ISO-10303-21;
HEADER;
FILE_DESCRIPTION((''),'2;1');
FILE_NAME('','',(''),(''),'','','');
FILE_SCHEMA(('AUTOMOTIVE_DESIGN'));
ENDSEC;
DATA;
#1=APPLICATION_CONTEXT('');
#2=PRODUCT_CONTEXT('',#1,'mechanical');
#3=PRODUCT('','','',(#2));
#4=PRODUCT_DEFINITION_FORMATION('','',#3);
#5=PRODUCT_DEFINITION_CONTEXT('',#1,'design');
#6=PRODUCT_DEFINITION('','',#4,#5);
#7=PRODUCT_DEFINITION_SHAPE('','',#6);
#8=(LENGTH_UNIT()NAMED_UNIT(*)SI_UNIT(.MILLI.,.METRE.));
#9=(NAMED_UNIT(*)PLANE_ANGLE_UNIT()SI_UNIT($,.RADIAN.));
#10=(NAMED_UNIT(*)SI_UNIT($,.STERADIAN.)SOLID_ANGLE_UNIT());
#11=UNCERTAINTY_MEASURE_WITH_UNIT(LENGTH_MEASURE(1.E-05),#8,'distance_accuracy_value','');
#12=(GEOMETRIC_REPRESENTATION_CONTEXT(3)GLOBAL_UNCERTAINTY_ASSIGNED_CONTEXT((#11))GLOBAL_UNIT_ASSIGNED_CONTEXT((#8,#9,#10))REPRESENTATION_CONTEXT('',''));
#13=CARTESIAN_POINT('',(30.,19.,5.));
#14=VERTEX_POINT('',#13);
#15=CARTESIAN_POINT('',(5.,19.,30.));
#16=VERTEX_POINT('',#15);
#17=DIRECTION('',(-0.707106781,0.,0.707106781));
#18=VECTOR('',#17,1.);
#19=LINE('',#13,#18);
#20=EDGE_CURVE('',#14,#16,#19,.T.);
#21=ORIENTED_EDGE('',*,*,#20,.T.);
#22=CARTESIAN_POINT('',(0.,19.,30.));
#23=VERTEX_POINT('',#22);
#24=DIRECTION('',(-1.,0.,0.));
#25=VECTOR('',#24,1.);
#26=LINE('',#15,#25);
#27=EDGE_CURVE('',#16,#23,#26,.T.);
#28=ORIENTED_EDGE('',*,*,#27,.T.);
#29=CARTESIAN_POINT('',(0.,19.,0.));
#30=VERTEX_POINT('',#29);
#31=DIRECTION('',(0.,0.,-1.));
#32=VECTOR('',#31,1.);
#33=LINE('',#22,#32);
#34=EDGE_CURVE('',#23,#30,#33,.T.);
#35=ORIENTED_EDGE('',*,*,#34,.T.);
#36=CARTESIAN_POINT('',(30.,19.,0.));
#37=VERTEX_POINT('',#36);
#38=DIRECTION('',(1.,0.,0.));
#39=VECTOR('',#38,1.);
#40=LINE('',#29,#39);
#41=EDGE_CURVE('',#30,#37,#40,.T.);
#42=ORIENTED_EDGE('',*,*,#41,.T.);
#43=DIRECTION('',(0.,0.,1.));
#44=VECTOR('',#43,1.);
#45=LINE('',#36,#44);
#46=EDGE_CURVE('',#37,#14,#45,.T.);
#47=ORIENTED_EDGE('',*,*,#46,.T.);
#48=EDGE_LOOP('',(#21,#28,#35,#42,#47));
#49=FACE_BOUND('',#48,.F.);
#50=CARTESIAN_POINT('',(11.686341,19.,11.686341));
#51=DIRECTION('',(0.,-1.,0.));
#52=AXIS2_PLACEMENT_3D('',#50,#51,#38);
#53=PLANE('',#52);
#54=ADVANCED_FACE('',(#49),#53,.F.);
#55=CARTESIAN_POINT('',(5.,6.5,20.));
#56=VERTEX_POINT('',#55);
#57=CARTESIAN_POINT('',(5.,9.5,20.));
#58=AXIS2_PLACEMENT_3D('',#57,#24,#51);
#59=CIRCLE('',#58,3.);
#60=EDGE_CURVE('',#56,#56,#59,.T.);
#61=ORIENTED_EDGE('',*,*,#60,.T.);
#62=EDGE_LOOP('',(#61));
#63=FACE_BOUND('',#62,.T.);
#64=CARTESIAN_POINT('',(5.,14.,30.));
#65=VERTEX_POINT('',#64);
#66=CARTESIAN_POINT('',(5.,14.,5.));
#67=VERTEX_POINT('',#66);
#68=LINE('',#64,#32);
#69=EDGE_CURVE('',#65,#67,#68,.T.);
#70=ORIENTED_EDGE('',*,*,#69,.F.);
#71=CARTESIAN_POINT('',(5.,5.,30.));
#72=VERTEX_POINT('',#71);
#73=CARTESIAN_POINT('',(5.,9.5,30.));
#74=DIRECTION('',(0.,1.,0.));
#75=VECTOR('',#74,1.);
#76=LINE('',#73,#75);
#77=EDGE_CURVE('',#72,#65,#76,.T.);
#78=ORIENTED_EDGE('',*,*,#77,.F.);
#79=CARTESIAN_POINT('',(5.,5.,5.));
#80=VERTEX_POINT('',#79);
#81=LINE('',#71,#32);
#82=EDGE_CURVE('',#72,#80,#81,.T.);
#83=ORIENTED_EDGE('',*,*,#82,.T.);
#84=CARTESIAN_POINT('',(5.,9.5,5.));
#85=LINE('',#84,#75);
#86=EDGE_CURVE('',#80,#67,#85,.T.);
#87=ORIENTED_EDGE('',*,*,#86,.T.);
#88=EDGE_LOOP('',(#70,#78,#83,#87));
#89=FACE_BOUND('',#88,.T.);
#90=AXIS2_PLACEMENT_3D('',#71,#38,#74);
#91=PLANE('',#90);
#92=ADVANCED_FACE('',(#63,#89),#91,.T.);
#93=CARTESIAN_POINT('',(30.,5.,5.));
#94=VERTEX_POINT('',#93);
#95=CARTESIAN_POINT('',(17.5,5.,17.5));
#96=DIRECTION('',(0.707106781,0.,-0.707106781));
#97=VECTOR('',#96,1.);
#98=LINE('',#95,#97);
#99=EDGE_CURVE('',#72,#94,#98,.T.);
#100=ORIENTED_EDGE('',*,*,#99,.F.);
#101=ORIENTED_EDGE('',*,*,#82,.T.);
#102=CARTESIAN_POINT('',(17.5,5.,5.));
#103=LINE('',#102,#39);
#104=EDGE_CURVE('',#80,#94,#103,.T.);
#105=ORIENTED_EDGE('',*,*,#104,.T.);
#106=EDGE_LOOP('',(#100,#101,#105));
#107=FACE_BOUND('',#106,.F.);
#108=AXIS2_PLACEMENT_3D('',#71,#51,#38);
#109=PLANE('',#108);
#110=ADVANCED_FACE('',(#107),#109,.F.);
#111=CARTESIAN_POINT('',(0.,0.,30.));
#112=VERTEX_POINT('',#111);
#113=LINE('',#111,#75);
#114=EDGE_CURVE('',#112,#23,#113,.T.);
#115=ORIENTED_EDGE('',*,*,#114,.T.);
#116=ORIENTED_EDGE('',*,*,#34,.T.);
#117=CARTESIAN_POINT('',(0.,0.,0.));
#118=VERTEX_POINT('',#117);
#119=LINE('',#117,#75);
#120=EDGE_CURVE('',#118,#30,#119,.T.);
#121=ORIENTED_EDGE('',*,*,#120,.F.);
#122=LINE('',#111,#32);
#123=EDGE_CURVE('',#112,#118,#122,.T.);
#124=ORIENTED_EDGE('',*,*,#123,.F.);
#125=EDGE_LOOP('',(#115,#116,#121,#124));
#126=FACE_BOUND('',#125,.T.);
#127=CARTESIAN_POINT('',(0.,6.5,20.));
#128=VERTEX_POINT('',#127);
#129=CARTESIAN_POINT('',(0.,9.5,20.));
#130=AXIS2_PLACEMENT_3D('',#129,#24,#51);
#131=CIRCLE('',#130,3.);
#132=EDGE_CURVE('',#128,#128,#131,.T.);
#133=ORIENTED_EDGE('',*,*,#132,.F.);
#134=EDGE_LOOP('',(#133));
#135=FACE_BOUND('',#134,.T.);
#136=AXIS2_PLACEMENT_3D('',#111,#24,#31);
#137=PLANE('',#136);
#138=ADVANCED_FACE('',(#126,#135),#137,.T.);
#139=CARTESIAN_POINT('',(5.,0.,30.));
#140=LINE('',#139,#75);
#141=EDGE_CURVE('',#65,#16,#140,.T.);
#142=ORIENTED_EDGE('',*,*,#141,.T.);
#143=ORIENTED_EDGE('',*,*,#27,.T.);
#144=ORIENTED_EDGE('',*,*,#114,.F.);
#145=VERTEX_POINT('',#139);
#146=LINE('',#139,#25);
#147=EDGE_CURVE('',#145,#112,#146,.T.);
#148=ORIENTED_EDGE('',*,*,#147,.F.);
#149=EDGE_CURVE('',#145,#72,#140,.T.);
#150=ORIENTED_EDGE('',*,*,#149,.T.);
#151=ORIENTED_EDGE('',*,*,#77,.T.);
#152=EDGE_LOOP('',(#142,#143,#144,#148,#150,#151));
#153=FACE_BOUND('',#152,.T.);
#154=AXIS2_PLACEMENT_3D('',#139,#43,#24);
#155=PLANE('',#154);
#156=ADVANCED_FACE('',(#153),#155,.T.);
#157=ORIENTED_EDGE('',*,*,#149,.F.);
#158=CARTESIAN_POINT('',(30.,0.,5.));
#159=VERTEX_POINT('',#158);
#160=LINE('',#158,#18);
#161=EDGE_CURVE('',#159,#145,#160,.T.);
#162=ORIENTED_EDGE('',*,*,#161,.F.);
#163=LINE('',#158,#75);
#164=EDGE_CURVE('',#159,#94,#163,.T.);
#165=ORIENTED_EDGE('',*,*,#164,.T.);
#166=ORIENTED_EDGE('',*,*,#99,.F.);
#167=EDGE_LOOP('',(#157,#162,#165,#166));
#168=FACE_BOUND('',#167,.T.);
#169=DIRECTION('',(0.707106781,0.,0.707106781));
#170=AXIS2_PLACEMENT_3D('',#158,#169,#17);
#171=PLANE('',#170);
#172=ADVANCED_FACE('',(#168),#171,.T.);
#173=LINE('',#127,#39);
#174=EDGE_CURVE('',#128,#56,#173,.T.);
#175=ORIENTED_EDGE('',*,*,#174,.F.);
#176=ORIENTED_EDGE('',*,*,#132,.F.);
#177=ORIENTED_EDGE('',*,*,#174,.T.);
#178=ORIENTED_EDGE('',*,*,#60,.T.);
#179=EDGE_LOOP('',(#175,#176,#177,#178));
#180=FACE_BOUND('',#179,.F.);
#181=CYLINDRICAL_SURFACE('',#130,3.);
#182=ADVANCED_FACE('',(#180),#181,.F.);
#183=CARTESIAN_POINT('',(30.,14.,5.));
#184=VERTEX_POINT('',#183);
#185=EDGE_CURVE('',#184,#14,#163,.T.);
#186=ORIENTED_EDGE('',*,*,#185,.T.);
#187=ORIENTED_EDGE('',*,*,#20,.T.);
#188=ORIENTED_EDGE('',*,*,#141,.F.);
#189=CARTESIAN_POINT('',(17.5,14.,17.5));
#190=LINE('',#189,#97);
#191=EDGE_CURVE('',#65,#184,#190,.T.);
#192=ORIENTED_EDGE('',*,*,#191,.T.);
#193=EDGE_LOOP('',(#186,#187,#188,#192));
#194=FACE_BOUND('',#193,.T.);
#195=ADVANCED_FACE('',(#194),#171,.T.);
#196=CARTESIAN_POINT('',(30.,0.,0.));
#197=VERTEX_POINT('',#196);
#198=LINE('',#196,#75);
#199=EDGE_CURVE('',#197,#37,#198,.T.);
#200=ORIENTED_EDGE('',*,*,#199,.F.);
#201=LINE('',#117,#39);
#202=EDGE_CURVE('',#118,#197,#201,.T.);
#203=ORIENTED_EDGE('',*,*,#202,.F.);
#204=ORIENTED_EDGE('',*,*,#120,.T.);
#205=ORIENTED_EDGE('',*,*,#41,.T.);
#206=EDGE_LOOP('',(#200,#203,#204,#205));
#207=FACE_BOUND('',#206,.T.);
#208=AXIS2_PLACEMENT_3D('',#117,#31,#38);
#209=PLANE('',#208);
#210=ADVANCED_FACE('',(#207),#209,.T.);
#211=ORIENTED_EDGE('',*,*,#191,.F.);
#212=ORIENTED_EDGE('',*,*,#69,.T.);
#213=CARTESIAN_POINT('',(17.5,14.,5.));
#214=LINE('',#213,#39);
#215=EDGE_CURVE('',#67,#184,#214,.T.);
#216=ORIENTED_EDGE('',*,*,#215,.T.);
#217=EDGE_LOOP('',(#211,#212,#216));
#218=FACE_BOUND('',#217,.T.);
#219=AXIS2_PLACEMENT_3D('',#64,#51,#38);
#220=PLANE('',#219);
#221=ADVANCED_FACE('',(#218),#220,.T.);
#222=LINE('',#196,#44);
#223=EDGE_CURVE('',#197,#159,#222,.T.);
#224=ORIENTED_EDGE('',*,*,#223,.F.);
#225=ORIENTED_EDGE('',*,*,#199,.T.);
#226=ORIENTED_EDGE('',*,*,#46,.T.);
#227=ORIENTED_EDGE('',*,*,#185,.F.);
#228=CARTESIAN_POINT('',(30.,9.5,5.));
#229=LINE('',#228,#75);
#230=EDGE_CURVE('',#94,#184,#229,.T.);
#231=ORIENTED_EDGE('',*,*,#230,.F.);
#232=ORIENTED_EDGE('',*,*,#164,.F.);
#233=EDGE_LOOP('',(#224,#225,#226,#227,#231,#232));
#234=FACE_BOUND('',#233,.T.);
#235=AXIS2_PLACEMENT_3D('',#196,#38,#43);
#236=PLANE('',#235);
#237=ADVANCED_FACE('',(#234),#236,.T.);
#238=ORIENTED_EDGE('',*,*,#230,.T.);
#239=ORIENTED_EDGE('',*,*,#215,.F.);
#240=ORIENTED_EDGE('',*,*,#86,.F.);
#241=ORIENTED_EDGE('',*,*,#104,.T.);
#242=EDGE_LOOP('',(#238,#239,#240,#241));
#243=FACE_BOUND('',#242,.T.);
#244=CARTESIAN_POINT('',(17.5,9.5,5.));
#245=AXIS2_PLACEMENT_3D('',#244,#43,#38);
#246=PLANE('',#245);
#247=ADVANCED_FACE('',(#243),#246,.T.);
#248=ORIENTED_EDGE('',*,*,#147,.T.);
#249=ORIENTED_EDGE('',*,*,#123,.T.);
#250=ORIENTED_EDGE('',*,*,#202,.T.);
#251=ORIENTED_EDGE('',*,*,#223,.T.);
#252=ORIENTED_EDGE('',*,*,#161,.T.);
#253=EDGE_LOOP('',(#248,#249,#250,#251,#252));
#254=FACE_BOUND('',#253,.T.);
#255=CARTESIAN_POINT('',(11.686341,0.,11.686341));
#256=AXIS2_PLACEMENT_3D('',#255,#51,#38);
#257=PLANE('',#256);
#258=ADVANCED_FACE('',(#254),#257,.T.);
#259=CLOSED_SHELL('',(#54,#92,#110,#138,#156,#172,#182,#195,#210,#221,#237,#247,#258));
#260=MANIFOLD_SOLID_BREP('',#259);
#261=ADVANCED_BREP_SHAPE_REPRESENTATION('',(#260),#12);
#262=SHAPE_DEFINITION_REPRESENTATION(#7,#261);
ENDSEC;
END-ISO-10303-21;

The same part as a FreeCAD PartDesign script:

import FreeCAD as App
import Part
import Sketcher
from FreeCAD import Vector
Q = App.Units.Quantity


def add_polygon(sketch, points):
    """Adds a closed chain of lines whose ends are joined by coincident constraints."""
    first, n = sketch.GeometryCount, len(points)
    for a, b in zip(points, points[1:] + points[:1]):
        sketch.addGeometry(Part.LineSegment(App.Vector(*a, 0), App.Vector(*b, 0)), False)
    for i in range(n):
        sketch.addConstraint(Sketcher.Constraint("Coincident", first + i, 2, first + (i + 1) % n, 1))

doc = App.newDocument("Part")
body = doc.addObject("PartDesign::Body", "Body")

# Sketch on XZ plane
sketch1 = body.newObject("Sketcher::SketchObject", "Sketch")
sketch1.AttachmentSupport = (doc.getObject("XZ_Plane"), [""])
sketch1.MapMode = "FlatFace"
add_polygon(sketch1, [(0, 30), (0, 0), (30, 0), (30, 5), (5, 30)])  # lines 0-4
sketch1.addConstraint(Sketcher.Constraint("Vertical", 0))
sketch1.addConstraint(Sketcher.Constraint("Horizontal", 1))
sketch1.addConstraint(Sketcher.Constraint("Vertical", 2))
sketch1.addConstraint(Sketcher.Constraint("Horizontal", 4))
sketch1.addConstraint(Sketcher.Constraint("Coincident", 0, 2, -1, 1))
sketch1.addConstraint(Sketcher.Constraint("Equal", 1, 0))
sketch1.addConstraint(Sketcher.Constraint("Equal", 4, 2))
sketch1.addConstraint(Sketcher.Constraint("DistanceX", 1, 1, 1, 2, Q("30 mm")))
sketch1.addConstraint(Sketcher.Constraint("DistanceX", 4, 2, 4, 1, Q("5 mm")))
pad1 = body.newObject("PartDesign::Pad", "Pad")
pad1.Profile = sketch1
pad1.Length = 19
pad1.Reversed = True

# Sketch on XY plane
sketch2 = body.newObject("Sketcher::SketchObject", "Sketch001")
sketch2.AttachmentSupport = (doc.getObject("XY_Plane"), [""])
sketch2.MapMode = "FlatFace"
sketch2.AttachmentOffset = App.Placement(Vector(0, 0, 30), App.Rotation())
add_polygon(sketch2, [(5, 14), (5, 5), (30, 5), (30, 14)])  # lines 0-3
sketch2.addConstraint(Sketcher.Constraint("Vertical", 0))
sketch2.addConstraint(Sketcher.Constraint("Horizontal", 1))
sketch2.addConstraint(Sketcher.Constraint("Vertical", 2))
sketch2.addConstraint(Sketcher.Constraint("Horizontal", 3))
sketch2.addConstraint(Sketcher.Constraint("DistanceX", 1, 1, 1, 2, Q("25 mm")))
sketch2.addConstraint(Sketcher.Constraint("DistanceY", 0, 2, 0, 1, Q("9 mm")))
sketch2.addConstraint(Sketcher.Constraint("DistanceX", -1, 1, 0, 2, Q("5 mm")))
sketch2.addConstraint(Sketcher.Constraint("DistanceY", -1, 1, 0, 2, Q("5 mm")))
pocket1 = body.newObject("PartDesign::Pocket", "Pocket")
pocket1.Profile = sketch2
pocket1.Length = 25

# Sketch on YZ plane
sketch3 = body.newObject("Sketcher::SketchObject", "Sketch002")
sketch3.AttachmentSupport = (doc.getObject("YZ_Plane"), [""])
sketch3.MapMode = "FlatFace"
sketch3.addGeometry(Part.Circle(Vector(9.5, 20, 0), Vector(0, 0, 1), 3), False)
sketch3.addConstraint(Sketcher.Constraint("Diameter", 0, Q("6 mm")))
sketch3.addConstraint(Sketcher.Constraint("DistanceY", -1, 1, 0, 3, Q("20 mm")))
sketch3.addConstraint(Sketcher.Constraint("DistanceX", -1, 1, 0, 3, Q("9.5 mm")))
pocket2 = body.newObject("PartDesign::Pocket", "Pocket001")
pocket2.Profile = sketch3
pocket2.Type = "ThroughAll"
pocket2.Reversed = True

doc.recompute()
